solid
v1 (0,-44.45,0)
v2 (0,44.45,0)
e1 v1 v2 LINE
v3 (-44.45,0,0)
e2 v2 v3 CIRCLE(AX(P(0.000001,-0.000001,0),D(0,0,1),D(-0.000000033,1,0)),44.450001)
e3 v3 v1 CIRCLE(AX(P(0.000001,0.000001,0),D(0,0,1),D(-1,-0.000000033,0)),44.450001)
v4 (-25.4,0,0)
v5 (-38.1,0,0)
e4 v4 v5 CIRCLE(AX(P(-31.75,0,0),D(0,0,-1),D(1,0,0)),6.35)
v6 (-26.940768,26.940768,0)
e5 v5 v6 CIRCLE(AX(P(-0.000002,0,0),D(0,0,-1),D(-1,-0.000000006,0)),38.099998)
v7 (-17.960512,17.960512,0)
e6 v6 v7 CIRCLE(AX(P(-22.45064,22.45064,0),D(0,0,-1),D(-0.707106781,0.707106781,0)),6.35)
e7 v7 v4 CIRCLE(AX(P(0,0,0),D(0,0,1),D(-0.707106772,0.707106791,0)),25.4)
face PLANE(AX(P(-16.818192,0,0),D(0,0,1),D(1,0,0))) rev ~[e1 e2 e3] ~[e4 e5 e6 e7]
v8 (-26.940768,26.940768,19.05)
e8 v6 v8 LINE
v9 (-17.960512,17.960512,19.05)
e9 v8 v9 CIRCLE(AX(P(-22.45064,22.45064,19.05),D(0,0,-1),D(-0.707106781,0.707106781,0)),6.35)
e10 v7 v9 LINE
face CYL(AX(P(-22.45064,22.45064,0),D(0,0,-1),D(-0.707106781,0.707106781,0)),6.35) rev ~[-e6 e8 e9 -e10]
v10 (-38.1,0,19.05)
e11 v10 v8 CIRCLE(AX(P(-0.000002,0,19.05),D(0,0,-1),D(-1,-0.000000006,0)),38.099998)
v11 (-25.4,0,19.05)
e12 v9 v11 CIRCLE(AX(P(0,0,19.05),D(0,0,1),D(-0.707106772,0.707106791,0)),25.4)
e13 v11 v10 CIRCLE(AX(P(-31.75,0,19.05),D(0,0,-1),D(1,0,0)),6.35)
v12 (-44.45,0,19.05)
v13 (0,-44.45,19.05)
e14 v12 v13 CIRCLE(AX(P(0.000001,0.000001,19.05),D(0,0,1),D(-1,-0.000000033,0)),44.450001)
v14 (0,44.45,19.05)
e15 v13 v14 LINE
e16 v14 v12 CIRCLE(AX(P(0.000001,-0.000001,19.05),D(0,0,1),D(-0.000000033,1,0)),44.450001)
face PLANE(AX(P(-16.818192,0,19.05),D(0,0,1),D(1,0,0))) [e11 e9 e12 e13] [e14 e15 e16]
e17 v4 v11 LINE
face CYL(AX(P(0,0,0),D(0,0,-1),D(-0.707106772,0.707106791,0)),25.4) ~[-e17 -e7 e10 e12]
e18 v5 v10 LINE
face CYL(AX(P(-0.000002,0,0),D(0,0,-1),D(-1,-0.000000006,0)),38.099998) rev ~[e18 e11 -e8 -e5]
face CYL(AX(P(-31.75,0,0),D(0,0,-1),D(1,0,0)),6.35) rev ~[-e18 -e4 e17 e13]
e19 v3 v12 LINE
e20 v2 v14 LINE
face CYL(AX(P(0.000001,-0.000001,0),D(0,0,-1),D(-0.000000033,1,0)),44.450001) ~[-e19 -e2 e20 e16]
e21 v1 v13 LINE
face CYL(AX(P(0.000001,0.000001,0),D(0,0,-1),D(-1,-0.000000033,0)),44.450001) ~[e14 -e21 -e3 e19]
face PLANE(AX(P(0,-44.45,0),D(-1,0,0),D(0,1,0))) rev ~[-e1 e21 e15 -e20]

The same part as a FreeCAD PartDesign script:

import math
import FreeCAD as App
import Part
import Sketcher
from FreeCAD import Vector
Q = App.Units.Quantity

doc = App.newDocument("Part")
body = doc.addObject("PartDesign::Body", "Body")

# Sketch on XY plane
sketch1 = body.newObject("Sketcher::SketchObject", "Sketch")
sketch1.AttachmentSupport = (doc.getObject("XY_Plane"), [""])
sketch1.MapMode = "FlatFace"
sketch1.addGeometry(Part.ArcOfCircle(Part.Circle(Vector(0, 0, 0), Vector(0, 0, 1), 44), math.radians(90), math.radians(180)), False)
sketch1.addGeometry(Part.ArcOfCircle(Part.Circle(Vector(0, 0, 0), Vector(0, 0, 1), 44), math.radians(-180), math.radians(-90)), False)
sketch1.addGeometry(Part.LineSegment(Vector(0, -44, 0), Vector(0, 44, 0)), False)
sketch1.addGeometry(Part.ArcOfCircle(Part.Circle(Vector(0, 0, 0), Vector(0, 0, 1), 25), math.radians(135), math.radians(180)), False)
sketch1.addGeometry(Part.ArcOfCircle(Part.Circle(Vector(-32, 0, 0), Vector(0, 0, 1), 6), math.radians(180), math.radians(360)), False)
sketch1.addGeometry(Part.ArcOfCircle(Part.Circle(Vector(0, 0, 0), Vector(0, 0, 1), 38), math.radians(135), math.radians(180)), False)
sketch1.addGeometry(Part.ArcOfCircle(Part.Circle(Vector(-22, 22, 0), Vector(0, 0, 1), 6), math.radians(-45), math.radians(135)), False)
sketch1.addConstraint(Sketcher.Constraint("Tangent", 0, 2, 1, 1))
sketch1.addConstraint(Sketcher.Constraint("Coincident", 1, 2, 2, 1))
sketch1.addConstraint(Sketcher.Constraint("Coincident", 2, 2, 0, 1))
sketch1.addConstraint(Sketcher.Constraint("Tangent", 3, 2, 4, 2))
sketch1.addConstraint(Sketcher.Constraint("Tangent", 4, 1, 5, 2))
sketch1.addConstraint(Sketcher.Constraint("Tangent", 5, 1, 6, 2))
sketch1.addConstraint(Sketcher.Constraint("Tangent", 6, 1, 3, 1))
sketch1.addConstraint(Sketcher.Constraint("Vertical", 2))
sketch1.addConstraint(Sketcher.Constraint("Coincident", 0, 3, -1, 1))
sketch1.addConstraint(Sketcher.Constraint("Coincident", 3, 3, -1, 1))
sketch1.addConstraint(Sketcher.Constraint("Coincident", 5, 3, -1, 1))
sketch1.addConstraint(Sketcher.Constraint("Equal", 0, 1))
sketch1.addConstraint(Sketcher.Constraint("PointOnObject", 4, 3, -1))
sketch1.addConstraint(Sketcher.Constraint("PointOnObject", 0, 2, -1))
sketch1.addConstraint(Sketcher.Constraint("PointOnObject", 1, 2, -2))
sketch1.addConstraint(Sketcher.Constraint("Radius", 3, Q("1 in")))
sketch1.addConstraint(Sketcher.Constraint("Radius", 5, Q("1.4999999 in")))
sketch1.addConstraint(Sketcher.Constraint("Radius", 0, Q("1.7500001 in")))
sketch1.addConstraint(Sketcher.Constraint("DistanceX", 6, 3, -1, 1, 22.45064))
pad1 = body.newObject("PartDesign::Pad", "Pad")
pad1.Profile = sketch1
pad1.Length = Q("0.75 in")

doc.recompute()
